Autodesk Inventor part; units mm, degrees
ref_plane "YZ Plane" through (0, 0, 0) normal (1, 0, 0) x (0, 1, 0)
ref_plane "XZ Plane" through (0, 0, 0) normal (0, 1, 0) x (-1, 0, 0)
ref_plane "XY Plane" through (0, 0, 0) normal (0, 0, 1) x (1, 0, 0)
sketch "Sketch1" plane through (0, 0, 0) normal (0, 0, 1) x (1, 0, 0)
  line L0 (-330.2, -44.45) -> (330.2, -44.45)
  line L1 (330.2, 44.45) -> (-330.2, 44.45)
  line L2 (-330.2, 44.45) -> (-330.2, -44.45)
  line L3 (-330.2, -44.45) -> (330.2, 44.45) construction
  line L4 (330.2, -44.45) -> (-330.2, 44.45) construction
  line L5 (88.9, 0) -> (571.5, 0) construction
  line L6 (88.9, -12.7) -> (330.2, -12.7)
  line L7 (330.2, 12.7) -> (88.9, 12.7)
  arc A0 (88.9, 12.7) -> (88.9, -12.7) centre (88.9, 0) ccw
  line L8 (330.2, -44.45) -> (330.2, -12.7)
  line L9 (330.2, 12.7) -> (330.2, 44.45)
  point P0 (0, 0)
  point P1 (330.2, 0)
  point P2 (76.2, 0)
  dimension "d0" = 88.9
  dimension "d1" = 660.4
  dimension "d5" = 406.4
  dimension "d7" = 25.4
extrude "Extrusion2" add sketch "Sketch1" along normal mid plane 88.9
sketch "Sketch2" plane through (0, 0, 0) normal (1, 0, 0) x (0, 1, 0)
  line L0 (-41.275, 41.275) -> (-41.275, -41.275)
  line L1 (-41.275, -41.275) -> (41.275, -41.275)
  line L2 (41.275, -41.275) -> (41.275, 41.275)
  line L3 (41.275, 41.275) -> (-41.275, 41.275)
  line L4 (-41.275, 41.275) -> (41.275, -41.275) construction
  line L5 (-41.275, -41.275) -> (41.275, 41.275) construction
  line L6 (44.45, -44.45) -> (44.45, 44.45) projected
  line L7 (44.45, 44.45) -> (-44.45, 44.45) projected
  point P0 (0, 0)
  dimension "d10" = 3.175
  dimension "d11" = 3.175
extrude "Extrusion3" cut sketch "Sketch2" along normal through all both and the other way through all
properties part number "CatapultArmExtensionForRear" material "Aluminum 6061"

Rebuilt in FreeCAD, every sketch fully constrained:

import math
import FreeCAD as App
import Part
import Sketcher

V = App.Vector
Q = App.Units.Quantity


def add_polygon(sketch, points):
    """Adds a closed chain of lines whose ends are joined by coincident constraints."""
    first, n = sketch.GeometryCount, len(points)
    for a, b in zip(points, points[1:] + points[:1]):
        sketch.addGeometry(Part.LineSegment(App.Vector(*a, 0), App.Vector(*b, 0)), False)
    for i in range(n):
        sketch.addConstraint(Sketcher.Constraint("Coincident", first + i, 2, first + (i + 1) % n, 1))

doc = App.newDocument("Part")
body = doc.addObject("PartDesign::Body", "Body")

sketch1 = doc.addObject("Sketcher::SketchObject", "Sketch")
body.addObject(sketch1)
sketch1.AttachmentSupport = (doc.XY_Plane, [""])
sketch1.MapMode = "FlatFace"
sketch1.addGeometry(Part.LineSegment(V(-330, 44, 0), V(-330, -44, 0)), False)
sketch1.addGeometry(Part.LineSegment(V(-330, -44, 0), V(330, -44, 0)), False)
sketch1.addGeometry(Part.LineSegment(V(330, -44, 0), V(330, -13, 0)), False)
sketch1.addGeometry(Part.LineSegment(V(330, -13, 0), V(89, -13, 0)), False)
sketch1.addGeometry(Part.ArcOfCircle(Part.Circle(V(89, 0, 0), V(0, 0, 1), 13), math.radians(90), math.radians(270)), False)
sketch1.addGeometry(Part.LineSegment(V(89, 13, 0), V(330, 13, 0)), False)
sketch1.addGeometry(Part.LineSegment(V(330, 13, 0), V(330, 44, 0)), False)
sketch1.addGeometry(Part.LineSegment(V(330, 44, 0), V(-330, 44, 0)), False)
sketch1.addConstraint(Sketcher.Constraint("Coincident", 0, 2, 1, 1))
sketch1.addConstraint(Sketcher.Constraint("Coincident", 1, 2, 2, 1))
sketch1.addConstraint(Sketcher.Constraint("Coincident", 2, 2, 3, 1))
sketch1.addConstraint(Sketcher.Constraint("Tangent", 3, 2, 4, 2))
sketch1.addConstraint(Sketcher.Constraint("Tangent", 4, 1, 5, 1))
sketch1.addConstraint(Sketcher.Constraint("Coincident", 5, 2, 6, 1))
sketch1.addConstraint(Sketcher.Constraint("Coincident", 6, 2, 7, 1))
sketch1.addConstraint(Sketcher.Constraint("Coincident", 7, 2, 0, 1))
sketch1.addConstraint(Sketcher.Constraint("Vertical", 0))
sketch1.addConstraint(Sketcher.Constraint("Horizontal", 1))
sketch1.addConstraint(Sketcher.Constraint("Vertical", 2))
sketch1.addConstraint(Sketcher.Constraint("Horizontal", 3))
sketch1.addConstraint(Sketcher.Constraint("Horizontal", 5))
sketch1.addConstraint(Sketcher.Constraint("Vertical", 6))
sketch1.addConstraint(Sketcher.Constraint("Horizontal", 7))
sketch1.addConstraint(Sketcher.Constraint("Symmetric", 0, 2, 6, 2, -1, 1))
sketch1.addConstraint(Sketcher.Constraint("Symmetric", 2, 2, 5, 2, -1))
sketch1.addConstraint(Sketcher.Constraint("Radius", 4, Q("0.5 in")))
sketch1.addConstraint(Sketcher.Constraint("DistanceX", 1, 1, 1, 2, Q("26 in")))
sketch1.addConstraint(Sketcher.Constraint("DistanceY", 0, 2, 0, 1, Q("3.5 in")))
sketch1.addConstraint(Sketcher.Constraint("DistanceX", -1, 1, 4, 3, Q("3.5 in")))
pad1 = doc.addObject("PartDesign::Pad", "Pad")
body.addObject(pad1)
pad1.Profile = sketch1
pad1.Length = Q("3.5 in")
pad1.Midplane = True

sketch2 = doc.addObject("Sketcher::SketchObject", "Sketch001")
body.addObject(sketch2)
sketch2.AttachmentSupport = (doc.YZ_Plane, [""])
sketch2.MapMode = "FlatFace"
add_polygon(sketch2, [(41, 41), (-41, 41), (-41, -41), (41, -41)])
sketch2.addConstraint(Sketcher.Constraint("Horizontal", 0))
sketch2.addConstraint(Sketcher.Constraint("Vertical", 1))
sketch2.addConstraint(Sketcher.Constraint("Horizontal", 2))
sketch2.addConstraint(Sketcher.Constraint("Vertical", 3))
sketch2.addConstraint(Sketcher.Constraint("Symmetric", 0, 2, 2, 2, -1, 1))
sketch2.addConstraint(Sketcher.Constraint("Equal", 2, 1))
sketch2.addConstraint(Sketcher.Constraint("DistanceX", 0, 2, 0, 1, Q("3.25 in")))
pocket1 = doc.addObject("PartDesign::Pocket", "Pocket")
body.addObject(pocket1)
pocket1.Profile = sketch2
pocket1.Type = "ThroughAll"
pocket1.Midplane = True

doc.recompute()
